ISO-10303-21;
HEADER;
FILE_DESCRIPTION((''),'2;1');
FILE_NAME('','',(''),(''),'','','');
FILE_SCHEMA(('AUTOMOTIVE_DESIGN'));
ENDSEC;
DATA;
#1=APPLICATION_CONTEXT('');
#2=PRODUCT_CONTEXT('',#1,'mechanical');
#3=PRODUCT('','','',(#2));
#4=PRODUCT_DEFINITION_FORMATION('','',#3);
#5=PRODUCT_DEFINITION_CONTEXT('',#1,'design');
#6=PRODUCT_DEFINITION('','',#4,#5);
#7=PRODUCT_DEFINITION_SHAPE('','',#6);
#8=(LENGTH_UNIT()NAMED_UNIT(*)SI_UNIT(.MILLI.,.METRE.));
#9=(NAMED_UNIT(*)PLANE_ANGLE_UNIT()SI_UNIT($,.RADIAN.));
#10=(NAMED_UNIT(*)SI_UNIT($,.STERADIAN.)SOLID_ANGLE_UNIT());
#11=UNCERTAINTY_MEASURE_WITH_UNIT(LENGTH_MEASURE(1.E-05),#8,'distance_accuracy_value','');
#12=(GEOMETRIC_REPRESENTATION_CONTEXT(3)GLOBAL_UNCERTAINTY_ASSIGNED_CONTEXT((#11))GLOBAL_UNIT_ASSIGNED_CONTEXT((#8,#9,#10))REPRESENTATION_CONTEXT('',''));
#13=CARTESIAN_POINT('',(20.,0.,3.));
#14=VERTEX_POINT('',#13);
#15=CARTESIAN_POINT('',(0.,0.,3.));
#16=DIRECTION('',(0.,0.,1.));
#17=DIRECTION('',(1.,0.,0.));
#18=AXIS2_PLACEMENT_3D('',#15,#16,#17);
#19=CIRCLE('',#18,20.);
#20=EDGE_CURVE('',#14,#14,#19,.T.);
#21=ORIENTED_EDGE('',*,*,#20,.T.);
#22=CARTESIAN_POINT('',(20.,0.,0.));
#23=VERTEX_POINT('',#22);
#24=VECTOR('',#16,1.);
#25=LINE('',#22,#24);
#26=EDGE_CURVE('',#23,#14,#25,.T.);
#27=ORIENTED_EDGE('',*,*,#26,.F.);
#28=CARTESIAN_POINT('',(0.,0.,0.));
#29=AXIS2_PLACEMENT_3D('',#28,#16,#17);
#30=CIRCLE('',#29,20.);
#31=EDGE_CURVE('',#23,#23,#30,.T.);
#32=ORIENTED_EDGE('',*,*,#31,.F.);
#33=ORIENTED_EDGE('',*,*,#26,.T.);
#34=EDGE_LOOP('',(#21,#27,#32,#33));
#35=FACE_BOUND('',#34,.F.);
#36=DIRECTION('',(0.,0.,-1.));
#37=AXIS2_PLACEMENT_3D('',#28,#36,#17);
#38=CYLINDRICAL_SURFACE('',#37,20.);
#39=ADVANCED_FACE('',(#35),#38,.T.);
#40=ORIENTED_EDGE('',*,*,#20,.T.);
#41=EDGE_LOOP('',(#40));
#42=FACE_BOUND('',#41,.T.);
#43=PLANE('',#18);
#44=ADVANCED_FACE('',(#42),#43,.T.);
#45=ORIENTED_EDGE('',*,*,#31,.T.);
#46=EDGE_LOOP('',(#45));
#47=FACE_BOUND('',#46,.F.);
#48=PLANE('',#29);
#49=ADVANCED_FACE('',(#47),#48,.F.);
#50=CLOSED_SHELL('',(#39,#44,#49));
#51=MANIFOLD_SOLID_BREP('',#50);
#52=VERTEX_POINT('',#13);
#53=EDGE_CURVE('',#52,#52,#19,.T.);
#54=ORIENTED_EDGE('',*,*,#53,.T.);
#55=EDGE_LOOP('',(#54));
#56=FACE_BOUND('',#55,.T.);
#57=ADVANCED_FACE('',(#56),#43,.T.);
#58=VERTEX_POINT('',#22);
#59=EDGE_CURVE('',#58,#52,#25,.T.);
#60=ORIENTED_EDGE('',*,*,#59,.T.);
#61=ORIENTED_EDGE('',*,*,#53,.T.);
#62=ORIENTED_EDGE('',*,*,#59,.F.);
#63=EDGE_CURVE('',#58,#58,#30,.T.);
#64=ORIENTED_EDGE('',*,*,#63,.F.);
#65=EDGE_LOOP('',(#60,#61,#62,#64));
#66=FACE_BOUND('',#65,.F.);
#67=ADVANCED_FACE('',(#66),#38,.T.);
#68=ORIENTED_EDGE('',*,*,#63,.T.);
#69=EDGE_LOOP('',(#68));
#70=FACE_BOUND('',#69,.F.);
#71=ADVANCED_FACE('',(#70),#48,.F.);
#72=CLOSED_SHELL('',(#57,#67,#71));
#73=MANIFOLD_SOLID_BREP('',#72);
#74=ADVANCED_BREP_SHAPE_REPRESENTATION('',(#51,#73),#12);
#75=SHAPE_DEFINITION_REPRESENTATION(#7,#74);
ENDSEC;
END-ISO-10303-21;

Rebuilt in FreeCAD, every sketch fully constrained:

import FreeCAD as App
import Part
import Sketcher
Q = App.Units.Quantity

doc = App.newDocument("Part")
params = doc.addObject("Spreadsheet::Sheet", "Params")
for row, (alias, value) in enumerate([
    ("sketch1_diameter", "40 mm"),
    ("pad1_length", "3 mm"),
    ("sketch2_diameter", "40 mm"),
    ("pad2_length", "3 mm"),
], start=1):
    params.set(f"A{row}", alias)
    params.set(f"B{row}", "=" + value)
    params.setAlias(f"B{row}", alias)

body = doc.addObject("PartDesign::Body", "Body")

# Sketch on XY plane
sketch1 = doc.addObject("Sketcher::SketchObject", "Sketch")
body.addObject(sketch1)
sketch1.AttachmentSupport = (doc.XY_Plane, [""])
sketch1.MapMode = "FlatFace"
sketch1.addGeometry(Part.Circle(App.Vector(0, 0, 0), App.Vector(0, 0, 1), 20), False)
sketch1.addConstraint(Sketcher.Constraint("Coincident", 0, 3, -1, 1))
sketch1.addConstraint(Sketcher.Constraint("Diameter", 0, Q("40 mm")))
sketch1.setExpression("Constraints[1]", "Params.sketch1_diameter")
pad1 = doc.addObject("PartDesign::Pad", "Pad")
body.addObject(pad1)
pad1.Profile = sketch1
pad1.setExpression("Length", "Params.pad1_length")
body2 = doc.addObject("PartDesign::Body", "Body001")

# Sketch on XY plane
sketch2 = doc.addObject("Sketcher::SketchObject", "Sketch001")
body2.addObject(sketch2)
sketch2.AttachmentSupport = (doc.getObject("XY_Plane001"), [""])
sketch2.MapMode = "FlatFace"
sketch2.addGeometry(Part.Circle(App.Vector(0, 0, 0), App.Vector(0, 0, 1), 20), False)
sketch2.addConstraint(Sketcher.Constraint("Coincident", 0, 3, -1, 1))
sketch2.addConstraint(Sketcher.Constraint("Diameter", 0, Q("40 mm")))
sketch2.setExpression("Constraints[1]", "Params.sketch2_diameter")
pad2 = doc.addObject("PartDesign::Pad", "Pad001")
body2.addObject(pad2)
pad2.Profile = sketch2
pad2.setExpression("Length", "Params.pad2_length")

doc.recompute()
